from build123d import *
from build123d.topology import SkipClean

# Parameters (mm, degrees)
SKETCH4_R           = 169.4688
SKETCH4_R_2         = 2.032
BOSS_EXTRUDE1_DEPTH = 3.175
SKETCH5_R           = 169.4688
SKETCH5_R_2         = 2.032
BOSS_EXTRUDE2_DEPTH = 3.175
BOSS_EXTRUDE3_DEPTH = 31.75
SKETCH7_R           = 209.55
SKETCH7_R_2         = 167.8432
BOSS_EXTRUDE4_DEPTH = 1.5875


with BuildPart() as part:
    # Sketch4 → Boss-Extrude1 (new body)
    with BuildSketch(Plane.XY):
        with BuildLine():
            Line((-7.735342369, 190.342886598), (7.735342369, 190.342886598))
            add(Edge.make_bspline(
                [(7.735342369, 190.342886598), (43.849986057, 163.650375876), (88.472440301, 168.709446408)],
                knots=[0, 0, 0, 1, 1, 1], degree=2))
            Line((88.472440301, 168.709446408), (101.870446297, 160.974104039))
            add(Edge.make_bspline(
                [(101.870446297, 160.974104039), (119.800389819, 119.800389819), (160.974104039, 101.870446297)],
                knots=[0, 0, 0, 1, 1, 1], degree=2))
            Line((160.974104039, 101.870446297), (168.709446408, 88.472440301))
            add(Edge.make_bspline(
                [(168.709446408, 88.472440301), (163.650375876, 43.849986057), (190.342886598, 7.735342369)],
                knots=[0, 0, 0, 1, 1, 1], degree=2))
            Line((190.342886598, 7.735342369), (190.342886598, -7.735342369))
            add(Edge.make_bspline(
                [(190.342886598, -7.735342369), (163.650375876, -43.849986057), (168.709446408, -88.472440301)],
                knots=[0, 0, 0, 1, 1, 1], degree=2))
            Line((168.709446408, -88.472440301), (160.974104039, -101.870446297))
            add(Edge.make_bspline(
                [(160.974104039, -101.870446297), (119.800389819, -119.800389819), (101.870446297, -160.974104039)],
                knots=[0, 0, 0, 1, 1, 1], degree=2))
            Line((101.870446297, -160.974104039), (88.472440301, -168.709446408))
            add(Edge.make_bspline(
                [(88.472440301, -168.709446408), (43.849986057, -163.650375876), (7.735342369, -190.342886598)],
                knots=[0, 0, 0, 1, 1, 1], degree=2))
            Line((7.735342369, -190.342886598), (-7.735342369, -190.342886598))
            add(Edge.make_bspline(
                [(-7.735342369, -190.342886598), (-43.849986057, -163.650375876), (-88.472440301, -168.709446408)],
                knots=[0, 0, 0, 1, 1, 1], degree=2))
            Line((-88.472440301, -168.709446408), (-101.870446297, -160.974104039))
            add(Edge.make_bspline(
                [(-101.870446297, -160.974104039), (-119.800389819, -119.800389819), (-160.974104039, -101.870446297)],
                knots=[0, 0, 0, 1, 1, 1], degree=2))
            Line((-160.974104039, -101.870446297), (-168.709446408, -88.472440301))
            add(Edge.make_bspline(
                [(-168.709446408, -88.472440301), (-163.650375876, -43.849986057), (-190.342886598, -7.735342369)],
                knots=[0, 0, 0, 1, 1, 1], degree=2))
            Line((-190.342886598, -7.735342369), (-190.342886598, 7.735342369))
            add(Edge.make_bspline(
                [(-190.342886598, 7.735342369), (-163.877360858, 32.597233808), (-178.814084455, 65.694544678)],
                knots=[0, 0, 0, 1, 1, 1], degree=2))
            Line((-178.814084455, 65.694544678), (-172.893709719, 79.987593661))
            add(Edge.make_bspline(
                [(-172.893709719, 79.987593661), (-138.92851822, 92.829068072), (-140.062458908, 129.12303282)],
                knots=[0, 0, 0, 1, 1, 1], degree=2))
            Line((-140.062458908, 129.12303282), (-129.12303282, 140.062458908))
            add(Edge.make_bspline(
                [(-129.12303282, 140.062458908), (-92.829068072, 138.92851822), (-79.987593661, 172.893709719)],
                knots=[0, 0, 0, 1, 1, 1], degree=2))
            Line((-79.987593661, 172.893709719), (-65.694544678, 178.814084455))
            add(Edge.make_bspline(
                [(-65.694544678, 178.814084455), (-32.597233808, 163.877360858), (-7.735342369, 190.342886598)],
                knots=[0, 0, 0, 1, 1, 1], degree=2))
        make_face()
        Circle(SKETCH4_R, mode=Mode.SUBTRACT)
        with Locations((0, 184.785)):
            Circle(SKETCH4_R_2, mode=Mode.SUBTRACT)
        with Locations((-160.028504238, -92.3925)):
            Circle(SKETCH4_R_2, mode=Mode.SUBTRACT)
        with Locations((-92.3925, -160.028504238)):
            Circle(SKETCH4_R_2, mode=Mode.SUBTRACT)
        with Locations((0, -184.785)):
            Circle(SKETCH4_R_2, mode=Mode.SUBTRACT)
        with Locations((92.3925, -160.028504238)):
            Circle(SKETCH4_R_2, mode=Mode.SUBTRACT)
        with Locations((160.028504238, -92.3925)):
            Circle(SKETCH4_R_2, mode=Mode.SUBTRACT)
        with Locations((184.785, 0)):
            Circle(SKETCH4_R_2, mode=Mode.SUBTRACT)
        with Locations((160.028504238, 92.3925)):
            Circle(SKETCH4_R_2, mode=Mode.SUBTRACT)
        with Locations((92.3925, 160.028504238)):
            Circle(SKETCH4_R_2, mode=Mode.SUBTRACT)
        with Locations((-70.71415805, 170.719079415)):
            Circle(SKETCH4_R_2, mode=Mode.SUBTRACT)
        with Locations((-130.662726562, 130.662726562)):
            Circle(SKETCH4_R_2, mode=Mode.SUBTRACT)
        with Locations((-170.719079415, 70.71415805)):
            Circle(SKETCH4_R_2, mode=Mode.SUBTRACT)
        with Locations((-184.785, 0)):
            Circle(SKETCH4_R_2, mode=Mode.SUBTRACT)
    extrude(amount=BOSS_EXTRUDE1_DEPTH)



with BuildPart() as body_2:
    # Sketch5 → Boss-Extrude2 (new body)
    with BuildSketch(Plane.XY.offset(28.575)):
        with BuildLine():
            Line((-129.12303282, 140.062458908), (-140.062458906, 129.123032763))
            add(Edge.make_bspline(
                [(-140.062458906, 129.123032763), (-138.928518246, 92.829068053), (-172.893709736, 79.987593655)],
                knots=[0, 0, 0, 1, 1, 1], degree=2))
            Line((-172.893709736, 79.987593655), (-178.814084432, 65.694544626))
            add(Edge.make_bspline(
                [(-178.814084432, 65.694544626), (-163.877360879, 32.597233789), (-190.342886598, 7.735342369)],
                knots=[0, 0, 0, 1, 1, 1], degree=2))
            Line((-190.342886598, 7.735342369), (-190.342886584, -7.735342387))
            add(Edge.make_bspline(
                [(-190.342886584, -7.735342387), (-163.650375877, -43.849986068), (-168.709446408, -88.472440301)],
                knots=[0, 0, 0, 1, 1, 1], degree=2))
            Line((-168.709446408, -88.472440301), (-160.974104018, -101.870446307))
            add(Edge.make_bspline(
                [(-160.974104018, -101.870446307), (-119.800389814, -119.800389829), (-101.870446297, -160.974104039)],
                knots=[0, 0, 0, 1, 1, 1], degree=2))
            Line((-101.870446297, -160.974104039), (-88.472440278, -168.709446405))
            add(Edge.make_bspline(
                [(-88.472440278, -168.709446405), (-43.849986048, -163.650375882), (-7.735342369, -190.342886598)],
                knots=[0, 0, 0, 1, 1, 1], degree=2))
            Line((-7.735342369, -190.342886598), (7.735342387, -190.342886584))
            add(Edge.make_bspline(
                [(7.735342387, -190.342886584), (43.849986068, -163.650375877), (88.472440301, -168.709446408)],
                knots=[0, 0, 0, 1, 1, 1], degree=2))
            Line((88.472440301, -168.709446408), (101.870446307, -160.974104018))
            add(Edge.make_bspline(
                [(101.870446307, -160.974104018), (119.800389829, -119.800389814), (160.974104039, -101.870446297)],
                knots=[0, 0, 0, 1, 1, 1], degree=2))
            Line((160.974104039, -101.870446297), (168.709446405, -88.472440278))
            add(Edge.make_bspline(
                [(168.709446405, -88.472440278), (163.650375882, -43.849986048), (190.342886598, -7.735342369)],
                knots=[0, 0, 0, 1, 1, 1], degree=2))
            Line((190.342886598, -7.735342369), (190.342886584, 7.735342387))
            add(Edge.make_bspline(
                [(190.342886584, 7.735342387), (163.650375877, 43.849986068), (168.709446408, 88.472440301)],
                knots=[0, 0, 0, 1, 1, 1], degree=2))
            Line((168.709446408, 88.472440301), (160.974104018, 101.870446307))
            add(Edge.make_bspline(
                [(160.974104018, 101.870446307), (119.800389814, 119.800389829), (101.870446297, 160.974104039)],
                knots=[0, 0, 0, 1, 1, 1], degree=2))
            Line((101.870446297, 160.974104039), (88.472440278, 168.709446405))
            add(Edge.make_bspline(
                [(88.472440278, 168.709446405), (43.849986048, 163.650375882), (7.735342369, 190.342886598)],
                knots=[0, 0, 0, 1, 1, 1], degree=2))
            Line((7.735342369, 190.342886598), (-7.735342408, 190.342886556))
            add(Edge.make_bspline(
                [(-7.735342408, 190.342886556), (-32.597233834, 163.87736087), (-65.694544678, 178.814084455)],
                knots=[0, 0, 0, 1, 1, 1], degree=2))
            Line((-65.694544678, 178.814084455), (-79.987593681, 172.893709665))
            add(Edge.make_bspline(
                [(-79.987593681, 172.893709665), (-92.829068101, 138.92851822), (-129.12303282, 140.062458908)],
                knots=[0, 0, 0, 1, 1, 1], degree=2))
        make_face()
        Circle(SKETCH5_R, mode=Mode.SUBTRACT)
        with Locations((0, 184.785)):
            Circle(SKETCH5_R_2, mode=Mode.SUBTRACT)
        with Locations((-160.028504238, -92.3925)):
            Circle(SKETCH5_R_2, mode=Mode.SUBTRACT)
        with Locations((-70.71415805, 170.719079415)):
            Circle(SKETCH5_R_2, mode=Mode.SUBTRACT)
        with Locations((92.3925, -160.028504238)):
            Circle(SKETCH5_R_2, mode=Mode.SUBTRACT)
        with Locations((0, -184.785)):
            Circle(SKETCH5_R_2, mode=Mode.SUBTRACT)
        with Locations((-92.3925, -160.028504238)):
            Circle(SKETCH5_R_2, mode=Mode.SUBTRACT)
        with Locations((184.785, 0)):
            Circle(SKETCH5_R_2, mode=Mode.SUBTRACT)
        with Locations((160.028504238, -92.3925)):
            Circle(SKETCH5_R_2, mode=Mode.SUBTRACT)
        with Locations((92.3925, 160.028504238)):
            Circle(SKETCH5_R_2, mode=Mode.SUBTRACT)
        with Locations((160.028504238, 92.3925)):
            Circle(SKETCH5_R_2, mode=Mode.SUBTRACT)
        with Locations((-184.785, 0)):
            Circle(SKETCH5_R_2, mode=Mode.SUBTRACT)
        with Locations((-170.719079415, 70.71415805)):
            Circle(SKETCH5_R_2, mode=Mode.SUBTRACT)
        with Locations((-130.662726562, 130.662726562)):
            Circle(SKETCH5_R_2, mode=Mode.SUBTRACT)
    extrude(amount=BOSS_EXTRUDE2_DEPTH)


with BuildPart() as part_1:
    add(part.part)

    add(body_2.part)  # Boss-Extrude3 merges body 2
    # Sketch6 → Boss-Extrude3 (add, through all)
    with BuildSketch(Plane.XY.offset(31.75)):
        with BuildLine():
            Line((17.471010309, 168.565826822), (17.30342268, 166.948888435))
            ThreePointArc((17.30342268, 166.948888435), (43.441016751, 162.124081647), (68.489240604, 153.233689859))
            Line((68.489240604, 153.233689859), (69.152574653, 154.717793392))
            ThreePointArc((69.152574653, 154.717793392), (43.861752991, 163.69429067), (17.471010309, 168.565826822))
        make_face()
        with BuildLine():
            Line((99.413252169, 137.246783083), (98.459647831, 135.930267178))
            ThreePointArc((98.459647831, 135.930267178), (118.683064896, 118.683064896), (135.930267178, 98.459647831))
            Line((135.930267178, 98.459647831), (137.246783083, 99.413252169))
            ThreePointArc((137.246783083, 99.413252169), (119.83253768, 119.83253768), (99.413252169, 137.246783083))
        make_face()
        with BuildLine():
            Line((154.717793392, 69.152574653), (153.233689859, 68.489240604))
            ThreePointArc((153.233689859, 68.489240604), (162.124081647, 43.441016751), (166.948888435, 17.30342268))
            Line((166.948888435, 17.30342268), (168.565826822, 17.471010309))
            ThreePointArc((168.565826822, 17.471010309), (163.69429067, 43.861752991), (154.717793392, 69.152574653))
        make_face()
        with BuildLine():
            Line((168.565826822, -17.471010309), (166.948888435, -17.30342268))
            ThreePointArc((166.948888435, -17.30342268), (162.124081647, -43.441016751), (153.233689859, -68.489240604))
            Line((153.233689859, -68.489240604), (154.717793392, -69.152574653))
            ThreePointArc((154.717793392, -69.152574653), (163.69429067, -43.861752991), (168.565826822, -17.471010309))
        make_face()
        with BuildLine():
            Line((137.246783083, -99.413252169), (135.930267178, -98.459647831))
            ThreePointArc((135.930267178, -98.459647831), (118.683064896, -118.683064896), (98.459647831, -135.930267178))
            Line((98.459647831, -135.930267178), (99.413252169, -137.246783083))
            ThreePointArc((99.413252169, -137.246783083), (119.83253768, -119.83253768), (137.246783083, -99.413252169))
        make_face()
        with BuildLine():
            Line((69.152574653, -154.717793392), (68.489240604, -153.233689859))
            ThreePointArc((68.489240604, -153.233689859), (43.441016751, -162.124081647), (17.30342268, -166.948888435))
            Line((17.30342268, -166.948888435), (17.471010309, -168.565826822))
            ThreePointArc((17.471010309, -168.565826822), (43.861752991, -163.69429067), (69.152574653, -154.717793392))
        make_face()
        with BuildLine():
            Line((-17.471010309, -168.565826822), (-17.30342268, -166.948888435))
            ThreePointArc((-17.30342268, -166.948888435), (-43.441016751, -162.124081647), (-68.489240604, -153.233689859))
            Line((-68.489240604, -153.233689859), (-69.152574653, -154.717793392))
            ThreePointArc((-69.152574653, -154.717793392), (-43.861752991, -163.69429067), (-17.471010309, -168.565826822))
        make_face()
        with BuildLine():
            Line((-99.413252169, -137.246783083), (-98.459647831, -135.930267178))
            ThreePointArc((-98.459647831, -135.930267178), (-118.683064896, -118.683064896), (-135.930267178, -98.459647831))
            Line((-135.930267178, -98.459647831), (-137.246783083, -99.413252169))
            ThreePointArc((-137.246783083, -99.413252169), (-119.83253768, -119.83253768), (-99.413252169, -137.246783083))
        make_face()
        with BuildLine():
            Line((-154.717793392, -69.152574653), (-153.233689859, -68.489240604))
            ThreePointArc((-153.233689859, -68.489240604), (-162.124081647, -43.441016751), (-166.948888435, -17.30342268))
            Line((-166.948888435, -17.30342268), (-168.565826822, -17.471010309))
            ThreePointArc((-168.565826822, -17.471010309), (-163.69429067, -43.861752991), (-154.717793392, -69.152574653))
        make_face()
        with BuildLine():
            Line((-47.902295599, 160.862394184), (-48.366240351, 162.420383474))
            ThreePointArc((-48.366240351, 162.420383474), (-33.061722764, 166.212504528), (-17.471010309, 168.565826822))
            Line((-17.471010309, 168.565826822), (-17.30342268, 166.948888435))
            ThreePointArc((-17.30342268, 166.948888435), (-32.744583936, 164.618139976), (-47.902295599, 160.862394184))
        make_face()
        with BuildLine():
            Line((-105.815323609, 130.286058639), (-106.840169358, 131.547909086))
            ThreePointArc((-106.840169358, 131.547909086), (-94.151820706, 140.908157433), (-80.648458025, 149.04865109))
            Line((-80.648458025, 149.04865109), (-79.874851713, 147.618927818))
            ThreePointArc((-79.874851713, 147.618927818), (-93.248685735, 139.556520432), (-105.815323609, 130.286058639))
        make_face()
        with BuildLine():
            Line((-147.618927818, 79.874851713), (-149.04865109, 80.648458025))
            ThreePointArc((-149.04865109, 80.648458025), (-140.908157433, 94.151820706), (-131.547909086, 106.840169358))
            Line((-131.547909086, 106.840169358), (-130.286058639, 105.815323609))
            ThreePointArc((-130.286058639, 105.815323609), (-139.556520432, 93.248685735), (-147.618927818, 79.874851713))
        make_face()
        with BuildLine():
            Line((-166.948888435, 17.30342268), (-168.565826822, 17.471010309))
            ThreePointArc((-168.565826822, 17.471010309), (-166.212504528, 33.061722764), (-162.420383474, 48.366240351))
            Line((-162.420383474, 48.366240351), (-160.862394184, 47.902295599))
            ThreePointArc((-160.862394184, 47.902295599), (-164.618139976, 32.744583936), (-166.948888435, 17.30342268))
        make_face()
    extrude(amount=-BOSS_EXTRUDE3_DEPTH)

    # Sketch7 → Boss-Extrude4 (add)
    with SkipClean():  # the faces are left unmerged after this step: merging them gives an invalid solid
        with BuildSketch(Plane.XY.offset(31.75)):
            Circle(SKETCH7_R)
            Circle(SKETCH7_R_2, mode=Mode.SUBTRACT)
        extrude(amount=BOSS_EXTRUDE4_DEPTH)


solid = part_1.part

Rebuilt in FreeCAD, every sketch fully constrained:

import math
import FreeCAD as App
import Part
import Sketcher
Q = App.Units.Quantity

doc = App.newDocument("Part")
body = doc.addObject("PartDesign::Body", "Body")

sketch1 = body.newObject("Sketcher::SketchObject", "Sketch")
sketch1.AttachmentSupport = (doc.getObject("XY_Plane"), [""])
sketch1.MapMode = "FlatFace"
sketch1.addGeometry([
    Part.LineSegment(App.Vector(7.735342, 190.342887, 0), App.Vector(-7.735342, 190.342887, 0)),
    Part.BSplineCurve([App.Vector(-65.694545, 178.814084, 0), App.Vector(-32.597234, 163.877361, 0), App.Vector(-7.735342, 190.342887, 0)], [3, 3], [0, 1], False, 2, [1, 1, 1], False),
    Part.LineSegment(App.Vector(-65.694545, 178.814084, 0), App.Vector(-79.987594, 172.89371, 0)),
    Part.BSplineCurve([App.Vector(-129.123033, 140.062459, 0), App.Vector(-92.829068, 138.928518, 0), App.Vector(-79.987594, 172.89371, 0)], [3, 3], [0, 1], False, 2, [1, 1, 1], False),
    Part.LineSegment(App.Vector(-129.123033, 140.062459, 0), App.Vector(-140.062459, 129.123033, 0)),
    Part.BSplineCurve([App.Vector(-172.89371, 79.987594, 0), App.Vector(-138.928518, 92.829068, 0), App.Vector(-140.062459, 129.123033, 0)], [3, 3], [0, 1], False, 2, [1, 1, 1], False),
    Part.LineSegment(App.Vector(-172.89371, 79.987594, 0), App.Vector(-178.814084, 65.694545, 0)),
    Part.BSplineCurve([App.Vector(-190.342887, 7.735342, 0), App.Vector(-163.877361, 32.597234, 0), App.Vector(-178.814084, 65.694545, 0)], [3, 3], [0, 1], False, 2, [1, 1, 1], False),
    Part.LineSegment(App.Vector(-190.342887, 7.735342, 0), App.Vector(-190.342887, -7.735342, 0)),
    Part.BSplineCurve([App.Vector(-168.709446, -88.47244, 0), App.Vector(-163.650376, -43.849986, 0), App.Vector(-190.342887, -7.735342, 0)], [3, 3], [0, 1], False, 2, [1, 1, 1], False),
    Part.LineSegment(App.Vector(-168.709446, -88.47244, 0), App.Vector(-160.974104, -101.870446, 0)),
    Part.BSplineCurve([App.Vector(-101.870446, -160.974104, 0), App.Vector(-119.80039, -119.80039, 0), App.Vector(-160.974104, -101.870446, 0)], [3, 3], [0, 1], False, 2, [1, 1, 1], False),
    Part.LineSegment(App.Vector(-101.870446, -160.974104, 0), App.Vector(-88.47244, -168.709446, 0)),
    Part.BSplineCurve([App.Vector(-7.735342, -190.342887, 0), App.Vector(-43.849986, -163.650376, 0), App.Vector(-88.47244, -168.709446, 0)], [3, 3], [0, 1], False, 2, [1, 1, 1], False),
    Part.LineSegment(App.Vector(-7.735342, -190.342887, 0), App.Vector(7.735342, -190.342887, 0)),
    Part.BSplineCurve([App.Vector(88.47244, -168.709446, 0), App.Vector(43.849986, -163.650376, 0), App.Vector(7.735342, -190.342887, 0)], [3, 3], [0, 1], False, 2, [1, 1, 1], False),
    Part.LineSegment(App.Vector(88.47244, -168.709446, 0), App.Vector(101.870446, -160.974104, 0)),
    Part.BSplineCurve([App.Vector(160.974104, -101.870446, 0), App.Vector(119.80039, -119.80039, 0), App.Vector(101.870446, -160.974104, 0)], [3, 3], [0, 1], False, 2, [1, 1, 1], False),
    Part.LineSegment(App.Vector(160.974104, -101.870446, 0), App.Vector(168.709446, -88.47244, 0)),
    Part.BSplineCurve([App.Vector(190.342887, -7.735342, 0), App.Vector(163.650376, -43.849986, 0), App.Vector(168.709446, -88.47244, 0)], [3, 3], [0, 1], False, 2, [1, 1, 1], False),
    Part.LineSegment(App.Vector(190.342887, -7.735342, 0), App.Vector(190.342887, 7.735342, 0)),
    Part.BSplineCurve([App.Vector(168.709446, 88.47244, 0), App.Vector(163.650376, 43.849986, 0), App.Vector(190.342887, 7.735342, 0)], [3, 3], [0, 1], False, 2, [1, 1, 1], False),
    Part.LineSegment(App.Vector(168.709446, 88.47244, 0), App.Vector(160.974104, 101.870446, 0)),
    Part.BSplineCurve([App.Vector(101.870446, 160.974104, 0), App.Vector(119.80039, 119.80039, 0), App.Vector(160.974104, 101.870446, 0)], [3, 3], [0, 1], False, 2, [1, 1, 1], False),
    Part.LineSegment(App.Vector(101.870446, 160.974104, 0), App.Vector(88.47244, 168.709446, 0)),
    Part.BSplineCurve([App.Vector(7.735342, 190.342887, 0), App.Vector(43.849986, 163.650376, 0), App.Vector(88.47244, 168.709446, 0)], [3, 3], [0, 1], False, 2, [1, 1, 1], False),
    Part.Circle(App.Vector(92.3925, -160.028504, 0), App.Vector(0, 0, 1), 2.032),
    Part.Circle(App.Vector(0, -184.785, 0), App.Vector(0, 0, 1), 2.032),
    Part.Circle(App.Vector(160.028504, -92.3925, 0), App.Vector(0, 0, 1), 2.032),
    Part.Circle(App.Vector(184.785, 0, 0), App.Vector(0, 0, 1), 2.032),
    Part.Circle(App.Vector(0, 0, 0), App.Vector(0, 0, 1), 169.4688),
    Part.Circle(App.Vector(-92.3925, -160.028504, 0), App.Vector(0, 0, 1), 2.032),
    Part.Circle(App.Vector(-160.028504, -92.3925, 0), App.Vector(0, 0, 1), 2.032),
    Part.Circle(App.Vector(-184.785, 0, 0), App.Vector(0, 0, 1), 2.032),
    Part.Circle(App.Vector(160.028504, 92.3925, 0), App.Vector(0, 0, 1), 2.032),
    Part.Circle(App.Vector(92.3925, 160.028504, 0), App.Vector(0, 0, 1), 2.032),
    Part.Circle(App.Vector(0, 184.785, 0), App.Vector(0, 0, 1), 2.032),
    Part.Circle(App.Vector(-170.719079, 70.714158, 0), App.Vector(0, 0, 1), 2.032),
    Part.Circle(App.Vector(-70.714158, 170.719079, 0), App.Vector(0, 0, 1), 2.032),
    Part.Circle(App.Vector(-130.662727, 130.662727, 0), App.Vector(0, 0, 1), 2.032),
], False)
sketch1.addConstraint([
    Sketcher.Constraint("Block", 1),
    Sketcher.Constraint("Block", 3),
    Sketcher.Constraint("Block", 5),
    Sketcher.Constraint("Block", 7),
    Sketcher.Constraint("Block", 9),
    Sketcher.Constraint("Block", 11),
    Sketcher.Constraint("Block", 13),
    Sketcher.Constraint("Block", 15),
    Sketcher.Constraint("Block", 17),
    Sketcher.Constraint("Block", 19),
    Sketcher.Constraint("Block", 21),
    Sketcher.Constraint("Block", 23),
    Sketcher.Constraint("Block", 25),
    Sketcher.Constraint("Coincident", 0, 2, 1, 2),
    Sketcher.Constraint("Coincident", 1, 1, 2, 1),
    Sketcher.Constraint("Coincident", 2, 2, 3, 2),
    Sketcher.Constraint("Coincident", 3, 1, 4, 1),
    Sketcher.Constraint("Coincident", 4, 2, 5, 2),
    Sketcher.Constraint("Coincident", 5, 1, 6, 1),
    Sketcher.Constraint("Coincident", 6, 2, 7, 2),
    Sketcher.Constraint("Coincident", 7, 1, 8, 1),
    Sketcher.Constraint("Coincident", 8, 2, 9, 2),
    Sketcher.Constraint("Coincident", 9, 1, 10, 1),
    Sketcher.Constraint("Coincident", 10, 2, 11, 2),
    Sketcher.Constraint("Coincident", 11, 1, 12, 1),
    Sketcher.Constraint("Coincident", 12, 2, 13, 2),
    Sketcher.Constraint("Coincident", 13, 1, 14, 1),
    Sketcher.Constraint("Coincident", 14, 2, 15, 2),
    Sketcher.Constraint("Coincident", 15, 1, 16, 1),
    Sketcher.Constraint("Coincident", 16, 2, 17, 2),
    Sketcher.Constraint("Coincident", 17, 1, 18, 1),
    Sketcher.Constraint("Coincident", 18, 2, 19, 2),
    Sketcher.Constraint("Coincident", 19, 1, 20, 1),
    Sketcher.Constraint("Coincident", 20, 2, 21, 2),
    Sketcher.Constraint("Coincident", 21, 1, 22, 1),
    Sketcher.Constraint("Coincident", 22, 2, 23, 2),
    Sketcher.Constraint("Coincident", 23, 1, 24, 1),
    Sketcher.Constraint("Coincident", 24, 2, 25, 2),
    Sketcher.Constraint("Coincident", 25, 1, 0, 1),
    Sketcher.Constraint("Coincident", 30, 3, -1, 1),
    Sketcher.Constraint("Equal", 26, 27),
    Sketcher.Constraint("Equal", 27, 28),
    Sketcher.Constraint("Equal", 28, 29),
    Sketcher.Constraint("Equal", 29, 31),
    Sketcher.Constraint("Equal", 31, 32),
    Sketcher.Constraint("Equal", 32, 33),
    Sketcher.Constraint("Equal", 33, 34),
    Sketcher.Constraint("Equal", 34, 35),
    Sketcher.Constraint("Equal", 35, 36),
    Sketcher.Constraint("Equal", 36, 37),
    Sketcher.Constraint("Equal", 37, 38),
    Sketcher.Constraint("Equal", 38, 39),
    Sketcher.Constraint("Symmetric", 29, 3, 33, 3, -1, 1),
    Sketcher.Constraint("Symmetric", 32, 3, 34, 3, -1, 1),
    Sketcher.Constraint("Symmetric", 31, 3, 35, 3, -1, 1),
    Sketcher.Constraint("Symmetric", 27, 3, 36, 3, -1, 1),
    Sketcher.Constraint("Symmetric", 26, 3, 31, 3, -2),
    Sketcher.Constraint("Symmetric", 28, 3, 32, 3, -2),
    Sketcher.Constraint("PointOnObject", 27, 3, -2),
    Sketcher.Constraint("PointOnObject", 29, 3, -1),
    Sketcher.Constraint("Diameter", 26, Q("0.16 in")),
    Sketcher.Constraint("Diameter", 30, Q("13.344 in")),
    Sketcher.Constraint("DistanceY", 27, 3, -1, 1, Q("7.275 in")),
    Sketcher.Constraint("DistanceX", -1, 1, 29, 3, Q("7.275 in")),
    Sketcher.Constraint("DistanceX", 31, 3, 26, 3, Q("7.275 in")),
    Sketcher.Constraint("DistanceY", 28, 3, 34, 3, Q("7.275 in")),
    Sketcher.Constraint("DistanceX", 4, 2, 38, 3, 69.348301),
    Sketcher.Constraint("DistanceY", 8, 2, 37, 3, 78.4495),
    Sketcher.Constraint("DistanceX", 10, 2, 32, 3, 0.9456),
    Sketcher.Constraint("DistanceY", 16, 2, 26, 3, 0.9456),
    Sketcher.Constraint("DistanceX", 37, 3, -1, 1, 170.719079),
    Sketcher.Constraint("DistanceY", -1, 1, 38, 3, 170.719079),
    Sketcher.Constraint("DistanceY", 37, 3, 39, 3, 59.948569),
    Sketcher.Constraint("DistanceX", 39, 3, 38, 3, 59.948569),
])
pad1 = body.newObject("PartDesign::Pad", "Pad")
pad1.Profile = sketch1
pad1.Length = Q("0.125 in")
body2 = doc.addObject("PartDesign::Body", "Body001")

sketch2 = body2.newObject("Sketcher::SketchObject", "Sketch001")
sketch2.AttachmentSupport = (doc.getObject("XY_Plane001"), [""])
sketch2.MapMode = "FlatFace"
sketch2.AttachmentOffset = App.Placement(App.Vector(0, 0, 1.125 * 25.4), App.Rotation())
sketch2.addGeometry([
    Part.LineSegment(App.Vector(-129.123033, 140.062459, 0), App.Vector(-140.062459, 129.123033, 0)),
    Part.BSplineCurve([App.Vector(-140.062459, 129.123033, 0), App.Vector(-138.928518, 92.829068, 0), App.Vector(-172.89371, 79.987594, 0)], [3, 3], [0, 1], False, 2, [1, 1, 1], False),
    Part.LineSegment(App.Vector(-172.89371, 79.987594, 0), App.Vector(-178.814084, 65.694545, 0)),
    Part.BSplineCurve([App.Vector(-178.814084, 65.694545, 0), App.Vector(-163.877361, 32.597234, 0), App.Vector(-190.342887, 7.735342, 0)], [3, 3], [0, 1], False, 2, [1, 1, 1], False),
    Part.LineSegment(App.Vector(-190.342887, 7.735342, 0), App.Vector(-190.342887, -7.735342, 0)),
    Part.BSplineCurve([App.Vector(-190.342887, -7.735342, 0), App.Vector(-163.650376, -43.849986, 0), App.Vector(-168.709446, -88.47244, 0)], [3, 3], [0, 1], False, 2, [1, 1, 1], False),
    Part.LineSegment(App.Vector(-168.709446, -88.47244, 0), App.Vector(-160.974104, -101.870446, 0)),
    Part.BSplineCurve([App.Vector(-160.974104, -101.870446, 0), App.Vector(-119.80039, -119.80039, 0), App.Vector(-101.870446, -160.974104, 0)], [3, 3], [0, 1], False, 2, [1, 1, 1], False),
    Part.LineSegment(App.Vector(-101.870446, -160.974104, 0), App.Vector(-88.47244, -168.709446, 0)),
    Part.BSplineCurve([App.Vector(-88.47244, -168.709446, 0), App.Vector(-43.849986, -163.650376, 0), App.Vector(-7.735342, -190.342887, 0)], [3, 3], [0, 1], False, 2, [1, 1, 1], False),
    Part.LineSegment(App.Vector(-7.735342, -190.342887, 0), App.Vector(7.735342, -190.342887, 0)),
    Part.BSplineCurve([App.Vector(7.735342, -190.342887, 0), App.Vector(43.849986, -163.650376, 0), App.Vector(88.47244, -168.709446, 0)], [3, 3], [0, 1], False, 2, [1, 1, 1], False),
    Part.LineSegment(App.Vector(88.47244, -168.709446, 0), App.Vector(101.870446, -160.974104, 0)),
    Part.BSplineCurve([App.Vector(101.870446, -160.974104, 0), App.Vector(119.80039, -119.80039, 0), App.Vector(160.974104, -101.870446, 0)], [3, 3], [0, 1], False, 2, [1, 1, 1], False),
    Part.LineSegment(App.Vector(160.974104, -101.870446, 0), App.Vector(168.709446, -88.47244, 0)),
    Part.BSplineCurve([App.Vector(168.709446, -88.47244, 0), App.Vector(163.650376, -43.849986, 0), App.Vector(190.342887, -7.735342, 0)], [3, 3], [0, 1], False, 2, [1, 1, 1], False),
    Part.LineSegment(App.Vector(190.342887, -7.735342, 0), App.Vector(190.342887, 7.735342, 0)),
    Part.BSplineCurve([App.Vector(190.342887, 7.735342, 0), App.Vector(163.650376, 43.849986, 0), App.Vector(168.709446, 88.47244, 0)], [3, 3], [0, 1], False, 2, [1, 1, 1], False),
    Part.LineSegment(App.Vector(168.709446, 88.47244, 0), App.Vector(160.974104, 101.870446, 0)),
    Part.BSplineCurve([App.Vector(160.974104, 101.870446, 0), App.Vector(119.80039, 119.80039, 0), App.Vector(101.870446, 160.974104, 0)], [3, 3], [0, 1], False, 2, [1, 1, 1], False),
    Part.LineSegment(App.Vector(101.870446, 160.974104, 0), App.Vector(88.47244, 168.709446, 0)),
    Part.BSplineCurve([App.Vector(88.47244, 168.709446, 0), App.Vector(43.849986, 163.650376, 0), App.Vector(7.735342, 190.342887, 0)], [3, 3], [0, 1], False, 2, [1, 1, 1], False),
    Part.LineSegment(App.Vector(7.735342, 190.342887, 0), App.Vector(-7.735342, 190.342887, 0)),
    Part.BSplineCurve([App.Vector(-7.735342, 190.342887, 0), App.Vector(-32.597234, 163.877361, 0), App.Vector(-65.694545, 178.814084, 0)], [3, 3], [0, 1], False, 2, [1, 1, 1], False),
    Part.LineSegment(App.Vector(-65.694545, 178.814084, 0), App.Vector(-79.987594, 172.89371, 0)),
    Part.BSplineCurve([App.Vector(-79.987594, 172.89371, 0), App.Vector(-92.829068, 138.928518, 0), App.Vector(-129.123033, 140.062459, 0)], [3, 3], [0, 1], False, 2, [1, 1, 1], False),
    Part.Circle(App.Vector(-92.3925, -160.028504, 0), App.Vector(0, 0, 1), 2.032),
    Part.Circle(App.Vector(0, -184.785, 0), App.Vector(0, 0, 1), 2.032),
    Part.Circle(App.Vector(-160.028504, -92.3925, 0), App.Vector(0, 0, 1), 2.032),
    Part.Circle(App.Vector(-184.785, 0, 0), App.Vector(0, 0, 1), 2.032),
    Part.Circle(App.Vector(0, 0, 0), App.Vector(0, 0, 1), 169.4688),
    Part.Circle(App.Vector(92.3925, -160.028504, 0), App.Vector(0, 0, 1), 2.032),
    Part.Circle(App.Vector(160.028504, -92.3925, 0), App.Vector(0, 0, 1), 2.032),
    Part.Circle(App.Vector(184.785, 0, 0), App.Vector(0, 0, 1), 2.032),
    Part.Circle(App.Vector(-170.719079, 70.714158, 0), App.Vector(0, 0, 1), 2.032),
    Part.Circle(App.Vector(-130.662727, 130.662727, 0), App.Vector(0, 0, 1), 2.032),
    Part.Circle(App.Vector(-70.714158, 170.719079, 0), App.Vector(0, 0, 1), 2.032),
    Part.Circle(App.Vector(0, 184.785, 0), App.Vector(0, 0, 1), 2.032),
    Part.Circle(App.Vector(160.028504, 92.3925, 0), App.Vector(0, 0, 1), 2.032),
    Part.Circle(App.Vector(92.3925, 160.028504, 0), App.Vector(0, 0, 1), 2.032),
], False)
sketch2.addConstraint([
    Sketcher.Constraint("Block", 1),
    Sketcher.Constraint("Block", 3),
    Sketcher.Constraint("Block", 5),
    Sketcher.Constraint("Block", 7),
    Sketcher.Constraint("Block", 9),
    Sketcher.Constraint("Block", 11),
    Sketcher.Constraint("Block", 13),
    Sketcher.Constraint("Block", 15),
    Sketcher.Constraint("Block", 17),
    Sketcher.Constraint("Block", 19),
    Sketcher.Constraint("Block", 21),
    Sketcher.Constraint("Block", 23),
    Sketcher.Constraint("Block", 25),
    Sketcher.Constraint("Coincident", 0, 2, 1, 1),
    Sketcher.Constraint("Coincident", 1, 2, 2, 1),
    Sketcher.Constraint("Coincident", 2, 2, 3, 1),
    Sketcher.Constraint("Coincident", 3, 2, 4, 1),
    Sketcher.Constraint("Coincident", 4, 2, 5, 1),
    Sketcher.Constraint("Coincident", 5, 2, 6, 1),
    Sketcher.Constraint("Coincident", 6, 2, 7, 1),
    Sketcher.Constraint("Coincident", 7, 2, 8, 1),
    Sketcher.Constraint("Coincident", 8, 2, 9, 1),
    Sketcher.Constraint("Coincident", 9, 2, 10, 1),
    Sketcher.Constraint("Coincident", 10, 2, 11, 1),
    Sketcher.Constraint("Coincident", 11, 2, 12, 1),
    Sketcher.Constraint("Coincident", 12, 2, 13, 1),
    Sketcher.Constraint("Coincident", 13, 2, 14, 1),
    Sketcher.Constraint("Coincident", 14, 2, 15, 1),
    Sketcher.Constraint("Coincident", 15, 2, 16, 1),
    Sketcher.Constraint("Coincident", 16, 2, 17, 1),
    Sketcher.Constraint("Coincident", 17, 2, 18, 1),
    Sketcher.Constraint("Coincident", 18, 2, 19, 1),
    Sketcher.Constraint("Coincident", 19, 2, 20, 1),
    Sketcher.Constraint("Coincident", 20, 2, 21, 1),
    Sketcher.Constraint("Coincident", 21, 2, 22, 1),
    Sketcher.Constraint("Coincident", 22, 2, 23, 1),
    Sketcher.Constraint("Coincident", 23, 2, 24, 1),
    Sketcher.Constraint("Coincident", 24, 2, 25, 1),
    Sketcher.Constraint("Coincident", 25, 2, 0, 1),
    Sketcher.Constraint("Coincident", 30, 3, -1, 1),
    Sketcher.Constraint("Equal", 26, 27),
    Sketcher.Constraint("Equal", 27, 28),
    Sketcher.Constraint("Equal", 28, 29),
    Sketcher.Constraint("Equal", 29, 31),
    Sketcher.Constraint("Equal", 31, 32),
    Sketcher.Constraint("Equal", 32, 33),
    Sketcher.Constraint("Equal", 33, 34),
    Sketcher.Constraint("Equal", 34, 35),
    Sketcher.Constraint("Equal", 35, 36),
    Sketcher.Constraint("Equal", 36, 37),
    Sketcher.Constraint("Equal", 37, 38),
    Sketcher.Constraint("Equal", 38, 39),
    Sketcher.Constraint("Symmetric", 29, 3, 33, 3, -1, 1),
    Sketcher.Constraint("Symmetric", 27, 3, 37, 3, -1, 1),
    Sketcher.Constraint("Symmetric", 28, 3, 38, 3, -1, 1),
    Sketcher.Constraint("Symmetric", 26, 3, 39, 3, -1, 1),
    Sketcher.Constraint("Symmetric", 26, 3, 31, 3, -2),
    Sketcher.Constraint("Symmetric", 28, 3, 32, 3, -2),
    Sketcher.Constraint("PointOnObject", 27, 3, -2),
    Sketcher.Constraint("PointOnObject", 29, 3, -1),
    Sketcher.Constraint("Diameter", 26, Q("0.16 in")),
    Sketcher.Constraint("Diameter", 30, Q("13.344 in")),
    Sketcher.Constraint("DistanceY", 27, 3, -1, 1, Q("7.275 in")),
    Sketcher.Constraint("DistanceX", 29, 3, -1, 1, Q("7.275 in")),
    Sketcher.Constraint("DistanceX", 26, 3, 31, 3, Q("7.275 in")),
    Sketcher.Constraint("DistanceY", 32, 3, 38, 3, Q("7.275 in")),
    Sketcher.Constraint("DistanceX", 0, 2, 36, 3, 69.348301),
    Sketcher.Constraint("DistanceY", 4, 2, 34, 3, 78.4495),
    Sketcher.Constraint("DistanceX", 6, 2, 28, 3, 0.9456),
    Sketcher.Constraint("DistanceY", 12, 2, 31, 3, 0.9456),
    Sketcher.Constraint("DistanceX", 34, 3, -1, 1, 170.719079),
    Sketcher.Constraint("DistanceY", -1, 1, 36, 3, 170.719079),
    Sketcher.Constraint("DistanceY", 34, 3, 35, 3, 59.948569),
    Sketcher.Constraint("DistanceX", 35, 3, 36, 3, 59.948569),
])
pad2 = body2.newObject("PartDesign::Pad", "Pad001")
pad2.Profile = sketch2
pad2.Length = Q("0.125 in")
body.AllowCompound = True
doc.recompute()

boolean = body.newObject("PartDesign::Boolean", "Boolean")
boolean.Type = "Fuse"
boolean.addObjects([body2])

sketch3 = body.newObject("Sketcher::SketchObject", "Sketch002")
sketch3.AttachmentSupport = (doc.getObject("XY_Plane"), [""])
sketch3.MapMode = "FlatFace"
sketch3.AttachmentOffset = App.Placement(App.Vector(0, 0, 1.25 * 25.4), App.Rotation())
sketch3.addGeometry([
    Part.LineSegment(App.Vector(17.5, 168.6, 0), App.Vector(17.3, 166.9, 0)),
    Part.ArcOfCircle(Part.Circle(App.Vector(0, 0, 0), App.Vector(0, 0, 1), 167.8), math.radians(65.92), math.radians(84.08)),
    Part.LineSegment(App.Vector(68.5, 153.2, 0), App.Vector(69.2, 154.7, 0)),
    Part.ArcOfCircle(Part.Circle(App.Vector(0, 0, 0), App.Vector(0, 0, 1), 169.5), math.radians(65.92), math.radians(84.08)),
    Part.LineSegment(App.Vector(99.4, 137.2, 0), App.Vector(98.5, 135.9, 0)),
    Part.ArcOfCircle(Part.Circle(App.Vector(0, 0, 0), App.Vector(0, 0, 1), 167.8), math.radians(35.92), math.radians(54.08)),
    Part.LineSegment(App.Vector(135.9, 98.5, 0), App.Vector(137.2, 99.4, 0)),
    Part.ArcOfCircle(Part.Circle(App.Vector(0, 0, 0), App.Vector(0, 0, 1), 169.5), math.radians(35.92), math.radians(54.08)),
    Part.LineSegment(App.Vector(154.7, 69.2, 0), App.Vector(153.2, 68.5, 0)),
    Part.ArcOfCircle(Part.Circle(App.Vector(0, 0, 0), App.Vector(0, 0, 1), 167.8), math.radians(5.92), math.radians(24.08)),
    Part.LineSegment(App.Vector(166.9, 17.3, 0), App.Vector(168.6, 17.5, 0)),
    Part.ArcOfCircle(Part.Circle(App.Vector(0, 0, 0), App.Vector(0, 0, 1), 169.5), math.radians(5.92), math.radians(24.08)),
    Part.LineSegment(App.Vector(168.6, -17.5, 0), App.Vector(166.9, -17.3, 0)),
    Part.ArcOfCircle(Part.Circle(App.Vector(0, 0, 0), App.Vector(0, 0, 1), 167.8), math.radians(-24.08), math.radians(-5.92)),
    Part.LineSegment(App.Vector(153.2, -68.5, 0), App.Vector(154.7, -69.2, 0)),
    Part.ArcOfCircle(Part.Circle(App.Vector(0, 0, 0), App.Vector(0, 0, 1), 169.5), math.radians(-24.08), math.radians(-5.92)),
    Part.LineSegment(App.Vector(137.2, -99.4, 0), App.Vector(135.9, -98.5, 0)),
    Part.ArcOfCircle(Part.Circle(App.Vector(0, 0, 0), App.Vector(0, 0, 1), 167.8), math.radians(-54.08), math.radians(-35.92)),
    Part.LineSegment(App.Vector(98.5, -135.9, 0), App.Vector(99.4, -137.2, 0)),
    Part.ArcOfCircle(Part.Circle(App.Vector(0, 0, 0), App.Vector(0, 0, 1), 169.5), math.radians(-54.08), math.radians(-35.92)),
    Part.LineSegment(App.Vector(69.2, -154.7, 0), App.Vector(68.5, -153.2, 0)),
    Part.ArcOfCircle(Part.Circle(App.Vector(0, 0, 0), App.Vector(0, 0, 1), 167.8), math.radians(-84.08), math.radians(-65.92)),
    Part.LineSegment(App.Vector(17.3, -166.9, 0), App.Vector(17.5, -168.6, 0)),
    Part.ArcOfCircle(Part.Circle(App.Vector(0, 0, 0), App.Vector(0, 0, 1), 169.5), math.radians(-84.08), math.radians(-65.92)),
    Part.LineSegment(App.Vector(-17.5, -168.6, 0), App.Vector(-17.3, -166.9, 0)),
    Part.ArcOfCircle(Part.Circle(App.Vector(0, 0, 0), App.Vector(0, 0, 1), 167.8), math.radians(-114.08), math.radians(-95.92)),
    Part.LineSegment(App.Vector(-68.5, -153.2, 0), App.Vector(-69.2, -154.7, 0)),
    Part.ArcOfCircle(Part.Circle(App.Vector(0, 0, 0), App.Vector(0, 0, 1), 169.5), math.radians(-114.08), math.radians(-95.92)),
    Part.LineSegment(App.Vector(-99.4, -137.2, 0), App.Vector(-98.5, -135.9, 0)),
    Part.ArcOfCircle(Part.Circle(App.Vector(0, 0, 0), App.Vector(0, 0, 1), 167.8), math.radians(-144.08), math.radians(-125.92)),
    Part.LineSegment(App.Vector(-135.9, -98.5, 0), App.Vector(-137.2, -99.4, 0)),
    Part.ArcOfCircle(Part.Circle(App.Vector(0, 0, 0), App.Vector(0, 0, 1), 169.5), math.radians(-144.08), math.radians(-125.92)),
    Part.LineSegment(App.Vector(-154.7, -69.2, 0), App.Vector(-153.2, -68.5, 0)),
    Part.ArcOfCircle(Part.Circle(App.Vector(0, 0, 0), App.Vector(0, 0, 1), 167.8), math.radians(-174.08), math.radians(-155.92)),
    Part.LineSegment(App.Vector(-166.9, -17.3, 0), App.Vector(-168.6, -17.5, 0)),
    Part.ArcOfCircle(Part.Circle(App.Vector(0, 0, 0), App.Vector(0, 0, 1), 169.5), math.radians(-174.08), math.radians(-155.92)),
    Part.LineSegment(App.Vector(-48.4, 162.4, 0), App.Vector(-47.9, 160.9, 0)),
    Part.ArcOfCircle(Part.Circle(App.Vector(0, 0, 0), App.Vector(0, 0, 1), 167.8), math.radians(95.92), math.radians(106.58)),
    Part.LineSegment(App.Vector(-17.3, 166.9, 0), App.Vector(-17.5, 168.6, 0)),
    Part.ArcOfCircle(Part.Circle(App.Vector(0, 0, 0), App.Vector(0, 0, 1), 169.5), math.radians(95.92), math.radians(106.58)),
    Part.LineSegment(App.Vector(-106.8, 131.5, 0), App.Vector(-105.8, 130.3, 0)),
    Part.ArcOfCircle(Part.Circle(App.Vector(0, 0, 0), App.Vector(0, 0, 1), 167.8), math.radians(118.42), math.radians(129.08)),
    Part.LineSegment(App.Vector(-79.9, 147.6, 0), App.Vector(-80.6, 149, 0)),
    Part.ArcOfCircle(Part.Circle(App.Vector(0, 0, 0), App.Vector(0, 0, 1), 169.5), math.radians(118.42), math.radians(129.08)),
    Part.LineSegment(App.Vector(-149, 80.6, 0), App.Vector(-147.6, 79.9, 0)),
    Part.ArcOfCircle(Part.Circle(App.Vector(0, 0, 0), App.Vector(0, 0, 1), 167.8), math.radians(140.92), math.radians(151.58)),
    Part.LineSegment(App.Vector(-130.3, 105.8, 0), App.Vector(-131.5, 106.8, 0)),
    Part.ArcOfCircle(Part.Circle(App.Vector(0, 0, 0), App.Vector(0, 0, 1), 169.5), math.radians(140.92), math.radians(151.58)),
    Part.LineSegment(App.Vector(-168.6, 17.5, 0), App.Vector(-166.9, 17.3, 0)),
    Part.ArcOfCircle(Part.Circle(App.Vector(0, 0, 0), App.Vector(0, 0, 1), 167.8), math.radians(163.42), math.radians(174.08)),
    Part.LineSegment(App.Vector(-160.9, 47.9, 0), App.Vector(-162.4, 48.4, 0)),
    Part.ArcOfCircle(Part.Circle(App.Vector(0, 0, 0), App.Vector(0, 0, 1), 169.5), math.radians(163.42), math.radians(174.08)),
], False)
sketch3.addConstraint([
    Sketcher.Constraint("Coincident", 0, 2, 1, 2),
    Sketcher.Constraint("Coincident", 1, 1, 2, 1),
    Sketcher.Constraint("Coincident", 2, 2, 3, 1),
    Sketcher.Constraint("Coincident", 3, 2, 0, 1),
    Sketcher.Constraint("Coincident", 4, 2, 5, 2),
    Sketcher.Constraint("Coincident", 5, 1, 6, 1),
    Sketcher.Constraint("Coincident", 6, 2, 7, 1),
    Sketcher.Constraint("Coincident", 7, 2, 4, 1),
    Sketcher.Constraint("Coincident", 8, 2, 9, 2),
    Sketcher.Constraint("Coincident", 9, 1, 10, 1),
    Sketcher.Constraint("Coincident", 10, 2, 11, 1),
    Sketcher.Constraint("Coincident", 11, 2, 8, 1),
    Sketcher.Constraint("Coincident", 12, 2, 13, 2),
    Sketcher.Constraint("Coincident", 13, 1, 14, 1),
    Sketcher.Constraint("Coincident", 14, 2, 15, 1),
    Sketcher.Constraint("Coincident", 15, 2, 12, 1),
    Sketcher.Constraint("Coincident", 16, 2, 17, 2),
    Sketcher.Constraint("Coincident", 17, 1, 18, 1),
    Sketcher.Constraint("Coincident", 18, 2, 19, 1),
    Sketcher.Constraint("Coincident", 19, 2, 16, 1),
    Sketcher.Constraint("Coincident", 20, 2, 21, 2),
    Sketcher.Constraint("Coincident", 21, 1, 22, 1),
    Sketcher.Constraint("Coincident", 22, 2, 23, 1),
    Sketcher.Constraint("Coincident", 23, 2, 20, 1),
    Sketcher.Constraint("Coincident", 24, 2, 25, 2),
    Sketcher.Constraint("Coincident", 25, 1, 26, 1),
    Sketcher.Constraint("Coincident", 26, 2, 27, 1),
    Sketcher.Constraint("Coincident", 27, 2, 24, 1),
    Sketcher.Constraint("Coincident", 28, 2, 29, 2),
    Sketcher.Constraint("Coincident", 29, 1, 30, 1),
    Sketcher.Constraint("Coincident", 30, 2, 31, 1),
    Sketcher.Constraint("Coincident", 31, 2, 28, 1),
    Sketcher.Constraint("Coincident", 32, 2, 33, 2),
    Sketcher.Constraint("Coincident", 33, 1, 34, 1),
    Sketcher.Constraint("Coincident", 34, 2, 35, 1),
    Sketcher.Constraint("Coincident", 35, 2, 32, 1),
    Sketcher.Constraint("Coincident", 36, 2, 37, 2),
    Sketcher.Constraint("Coincident", 37, 1, 38, 1),
    Sketcher.Constraint("Coincident", 38, 2, 39, 1),
    Sketcher.Constraint("Coincident", 39, 2, 36, 1),
    Sketcher.Constraint("Coincident", 40, 2, 41, 2),
    Sketcher.Constraint("Coincident", 41, 1, 42, 1),
    Sketcher.Constraint("Coincident", 42, 2, 43, 1),
    Sketcher.Constraint("Coincident", 43, 2, 40, 1),
    Sketcher.Constraint("Coincident", 44, 2, 45, 2),
    Sketcher.Constraint("Coincident", 45, 1, 46, 1),
    Sketcher.Constraint("Coincident", 46, 2, 47, 1),
    Sketcher.Constraint("Coincident", 47, 2, 44, 1),
    Sketcher.Constraint("Coincident", 48, 2, 49, 2),
    Sketcher.Constraint("Coincident", 49, 1, 50, 1),
    Sketcher.Constraint("Coincident", 50, 2, 51, 1),
    Sketcher.Constraint("Coincident", 51, 2, 48, 1),
    Sketcher.Constraint("Coincident", 1, 3, -1, 1),
    Sketcher.Constraint("Coincident", 3, 3, -1, 1),
    Sketcher.Constraint("Coincident", 5, 3, -1, 1),
    Sketcher.Constraint("Coincident", 7, 3, -1, 1),
    Sketcher.Constraint("Coincident", 9, 3, -1, 1),
    Sketcher.Constraint("Coincident", 11, 3, -1, 1),
    Sketcher.Constraint("Coincident", 13, 3, -1, 1),
    Sketcher.Constraint("Coincident", 15, 3, -1, 1),
    Sketcher.Constraint("Coincident", 17, 3, -1, 1),
    Sketcher.Constraint("Coincident", 19, 3, -1, 1),
    Sketcher.Constraint("Coincident", 21, 3, -1, 1),
    Sketcher.Constraint("Coincident", 23, 3, -1, 1),
    Sketcher.Constraint("Coincident", 25, 3, -1, 1),
    Sketcher.Constraint("Coincident", 27, 3, -1, 1),
    Sketcher.Constraint("Coincident", 29, 3, -1, 1),
    Sketcher.Constraint("Coincident", 31, 3, -1, 1),
    Sketcher.Constraint("Coincident", 33, 3, -1, 1),
    Sketcher.Constraint("Coincident", 35, 3, -1, 1),
    Sketcher.Constraint("Coincident", 37, 3, -1, 1),
    Sketcher.Constraint("Coincident", 39, 3, -1, 1),
    Sketcher.Constraint("Coincident", 41, 3, -1, 1),
    Sketcher.Constraint("Coincident", 43, 3, -1, 1),
    Sketcher.Constraint("Coincident", 45, 3, -1, 1),
    Sketcher.Constraint("Coincident", 47, 3, -1, 1),
    Sketcher.Constraint("Coincident", 49, 3, -1, 1),
    Sketcher.Constraint("Coincident", 51, 3, -1, 1),
    Sketcher.Constraint("Equal", 1, 5),
    Sketcher.Constraint("Equal", 3, 7),
    Sketcher.Constraint("Equal", 5, 9),
    Sketcher.Constraint("Equal", 7, 11),
    Sketcher.Constraint("Equal", 9, 13),
    Sketcher.Constraint("Equal", 11, 15),
    Sketcher.Constraint("Equal", 13, 17),
    Sketcher.Constraint("Equal", 15, 19),
    Sketcher.Constraint("Equal", 17, 21),
    Sketcher.Constraint("Equal", 19, 23),
    Sketcher.Constraint("Equal", 21, 25),
    Sketcher.Constraint("Equal", 23, 27),
    Sketcher.Constraint("Equal", 25, 29),
    Sketcher.Constraint("Equal", 27, 31),
    Sketcher.Constraint("Equal", 29, 33),
    Sketcher.Constraint("Equal", 31, 35),
    Sketcher.Constraint("Equal", 33, 37),
    Sketcher.Constraint("Equal", 35, 39),
    Sketcher.Constraint("Equal", 37, 41),
    Sketcher.Constraint("Equal", 39, 43),
    Sketcher.Constraint("Equal", 41, 45),
    Sketcher.Constraint("Equal", 43, 47),
    Sketcher.Constraint("Equal", 45, 49),
    Sketcher.Constraint("Equal", 47, 51),
    Sketcher.Constraint("Perpendicular", 0, 12),
    Sketcher.Constraint("Perpendicular", 2, 14),
    Sketcher.Constraint("Perpendicular", 4, 16),
    Sketcher.Constraint("Perpendicular", 6, 18),
    Sketcher.Constraint("Perpendicular", 8, 20),
    Sketcher.Constraint("Perpendicular", 10, 22),
    Sketcher.Constraint("Perpendicular", 12, 24),
    Sketcher.Constraint("Perpendicular", 14, 26),
    Sketcher.Constraint("Perpendicular", 16, 28),
    Sketcher.Constraint("Perpendicular", 18, 30),
    Sketcher.Constraint("Perpendicular", 20, 32),
    Sketcher.Constraint("Perpendicular", 22, 34),
    Sketcher.Constraint("Perpendicular", 34, 38),
    Sketcher.Constraint("Perpendicular", 24, 48),
    Sketcher.Constraint("Horizontal", 21, 1, 24, 2),
    Sketcher.Constraint("Horizontal", 20, 2, 25, 1),
    Sketcher.Constraint("Horizontal", 23, 2, 26, 2),
    Sketcher.Constraint("Horizontal", 22, 2, 27, 2),
    Sketcher.Constraint("Horizontal", 17, 1, 28, 2),
    Sketcher.Constraint("Horizontal", 16, 2, 29, 1),
    Sketcher.Constraint("Horizontal", 19, 2, 30, 2),
    Sketcher.Constraint("Horizontal", 13, 1, 32, 2),
    Sketcher.Constraint("Horizontal", 12, 2, 33, 1),
    Sketcher.Constraint("Horizontal", 0, 2, 37, 1),
    Sketcher.Constraint("Horizontal", 9, 1, 48, 2),
    Sketcher.Constraint("Vertical", 9, 1, 12, 2),
    Sketcher.Constraint("Vertical", 8, 2, 13, 1),
    Sketcher.Constraint("Vertical", 5, 1, 16, 2),
    Sketcher.Constraint("Vertical", 4, 2, 17, 1),
    Sketcher.Constraint("Vertical", 1, 1, 20, 2),
    Sketcher.Constraint("Vertical", 0, 2, 21, 1),
    Sketcher.Constraint("Radius", 1, Q("6.608 in")),
    Sketcher.Constraint("Radius", 3, Q("6.672 in")),
    Sketcher.Constraint("DistanceY", -1, 1, 0, 2, 166.948888),
    Sketcher.Constraint("DistanceX", -1, 1, 1, 1, 68.489241),
    Sketcher.Constraint("DistanceX", -1, 1, 3, 2, 17.47101),
    Sketcher.Constraint("DistanceX", -1, 1, 8, 2, 153.23369),
    Sketcher.Constraint("DistanceX", -1, 1, 9, 1, 166.948888),
    Sketcher.Constraint("DistanceX", 39, 2, -1, 1, 48.36624),
    Sketcher.Constraint("DistanceY", -1, 1, 40, 2, 130.286059),
    Sketcher.Constraint("DistanceX", 41, 1, -1, 1, 79.874852),
    Sketcher.Constraint("DistanceX", 42, 2, -1, 1, 80.648458),
    Sketcher.Constraint("DistanceX", 43, 2, -1, 1, 106.840169),
    Sketcher.Constraint("DistanceY", -1, 1, 44, 2, 79.874852),
    Sketcher.Constraint("DistanceX", 45, 1, -1, 1, 130.286059),
    Sketcher.Constraint("DistanceX", 46, 2, -1, 1, 131.547909),
    Sketcher.Constraint("DistanceX", 47, 2, -1, 1, 149.048651),
    Sketcher.Constraint("DistanceY", -1, 1, 50, 2, 48.36624),
    Sketcher.Constraint("DistanceX", -1, 1, 2, 2, 69.152575),
    Sketcher.Constraint("DistanceX", -1, 1, 4, 2, 98.459648),
    Sketcher.Constraint("DistanceX", -1, 1, 5, 1, 135.930267),
    Sketcher.Constraint("DistanceX", -1, 1, 6, 2, 137.246783),
    Sketcher.Constraint("DistanceX", 36, 2, -1, 1, 47.902296),
    Sketcher.Constraint("DistanceX", 49, 1, -1, 1, 160.862394),
])
pad3 = body.newObject("PartDesign::Pad", "Pad002")
pad3.Profile = sketch3
pad3.Length = Q("1.25 in")
pad3.Reversed = True

sketch4 = body.newObject("Sketcher::SketchObject", "Sketch003")
sketch4.AttachmentSupport = (doc.getObject("XY_Plane"), [""])
sketch4.MapMode = "FlatFace"
sketch4.AttachmentOffset = App.Placement(App.Vector(0, 0, 1.25 * 25.4), App.Rotation())
sketch4.addGeometry([
    Part.Circle(App.Vector(0, 0, 0), App.Vector(0, 0, 1), 210),
    Part.Circle(App.Vector(0, 0, 0), App.Vector(0, 0, 1), 168),
], False)
sketch4.addConstraint([
    Sketcher.Constraint("Coincident", 0, 3, -1, 1),
    Sketcher.Constraint("Coincident", 1, 3, -1, 1),
    Sketcher.Constraint("Diameter", 0, Q("16.5 in")),
    Sketcher.Constraint("Diameter", 1, Q("13.216 in")),
])
pad4 = body.newObject("PartDesign::Pad", "Pad003")
pad4.Profile = sketch4
pad4.Length = Q("0.0625 in")

doc.recompute()
